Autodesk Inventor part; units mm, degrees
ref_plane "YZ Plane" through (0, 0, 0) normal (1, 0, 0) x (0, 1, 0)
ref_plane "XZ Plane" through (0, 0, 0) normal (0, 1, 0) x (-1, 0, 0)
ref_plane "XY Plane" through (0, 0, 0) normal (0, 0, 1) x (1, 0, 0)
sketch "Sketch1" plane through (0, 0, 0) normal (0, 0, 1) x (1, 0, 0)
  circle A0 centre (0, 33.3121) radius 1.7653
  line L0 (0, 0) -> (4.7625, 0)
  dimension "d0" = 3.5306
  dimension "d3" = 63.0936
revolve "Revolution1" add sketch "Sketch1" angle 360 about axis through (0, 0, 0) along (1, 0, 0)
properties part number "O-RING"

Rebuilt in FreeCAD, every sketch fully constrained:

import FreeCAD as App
import Part
import Sketcher
Q = App.Units.Quantity

doc = App.newDocument("Part")
body = doc.addObject("PartDesign::Body", "Body")

sketch1 = body.newObject("Sketcher::SketchObject", "Sketch")
sketch1.AttachmentSupport = (doc.getObject("XY_Plane"), [""])
sketch1.MapMode = "FlatFace"
sketch1.addGeometry(Part.Circle(App.Vector(0, 33.3, 0), App.Vector(0, 0, 1), 1.8), False)
sketch1.addConstraint(Sketcher.Constraint("PointOnObject", 0, 3, -2))
sketch1.addConstraint(Sketcher.Constraint("Diameter", 0, Q("0.139 in")))
sketch1.addConstraint(Sketcher.Constraint("DistanceY", -1, 1, 0, 3, Q("1.3115 in")))
revolution = body.newObject("PartDesign::Revolution", "Revolution")
revolution.Profile = sketch1
revolution.ReferenceAxis = (sketch1, ["H_Axis"])
revolution.Angle = 360

doc.recompute()
